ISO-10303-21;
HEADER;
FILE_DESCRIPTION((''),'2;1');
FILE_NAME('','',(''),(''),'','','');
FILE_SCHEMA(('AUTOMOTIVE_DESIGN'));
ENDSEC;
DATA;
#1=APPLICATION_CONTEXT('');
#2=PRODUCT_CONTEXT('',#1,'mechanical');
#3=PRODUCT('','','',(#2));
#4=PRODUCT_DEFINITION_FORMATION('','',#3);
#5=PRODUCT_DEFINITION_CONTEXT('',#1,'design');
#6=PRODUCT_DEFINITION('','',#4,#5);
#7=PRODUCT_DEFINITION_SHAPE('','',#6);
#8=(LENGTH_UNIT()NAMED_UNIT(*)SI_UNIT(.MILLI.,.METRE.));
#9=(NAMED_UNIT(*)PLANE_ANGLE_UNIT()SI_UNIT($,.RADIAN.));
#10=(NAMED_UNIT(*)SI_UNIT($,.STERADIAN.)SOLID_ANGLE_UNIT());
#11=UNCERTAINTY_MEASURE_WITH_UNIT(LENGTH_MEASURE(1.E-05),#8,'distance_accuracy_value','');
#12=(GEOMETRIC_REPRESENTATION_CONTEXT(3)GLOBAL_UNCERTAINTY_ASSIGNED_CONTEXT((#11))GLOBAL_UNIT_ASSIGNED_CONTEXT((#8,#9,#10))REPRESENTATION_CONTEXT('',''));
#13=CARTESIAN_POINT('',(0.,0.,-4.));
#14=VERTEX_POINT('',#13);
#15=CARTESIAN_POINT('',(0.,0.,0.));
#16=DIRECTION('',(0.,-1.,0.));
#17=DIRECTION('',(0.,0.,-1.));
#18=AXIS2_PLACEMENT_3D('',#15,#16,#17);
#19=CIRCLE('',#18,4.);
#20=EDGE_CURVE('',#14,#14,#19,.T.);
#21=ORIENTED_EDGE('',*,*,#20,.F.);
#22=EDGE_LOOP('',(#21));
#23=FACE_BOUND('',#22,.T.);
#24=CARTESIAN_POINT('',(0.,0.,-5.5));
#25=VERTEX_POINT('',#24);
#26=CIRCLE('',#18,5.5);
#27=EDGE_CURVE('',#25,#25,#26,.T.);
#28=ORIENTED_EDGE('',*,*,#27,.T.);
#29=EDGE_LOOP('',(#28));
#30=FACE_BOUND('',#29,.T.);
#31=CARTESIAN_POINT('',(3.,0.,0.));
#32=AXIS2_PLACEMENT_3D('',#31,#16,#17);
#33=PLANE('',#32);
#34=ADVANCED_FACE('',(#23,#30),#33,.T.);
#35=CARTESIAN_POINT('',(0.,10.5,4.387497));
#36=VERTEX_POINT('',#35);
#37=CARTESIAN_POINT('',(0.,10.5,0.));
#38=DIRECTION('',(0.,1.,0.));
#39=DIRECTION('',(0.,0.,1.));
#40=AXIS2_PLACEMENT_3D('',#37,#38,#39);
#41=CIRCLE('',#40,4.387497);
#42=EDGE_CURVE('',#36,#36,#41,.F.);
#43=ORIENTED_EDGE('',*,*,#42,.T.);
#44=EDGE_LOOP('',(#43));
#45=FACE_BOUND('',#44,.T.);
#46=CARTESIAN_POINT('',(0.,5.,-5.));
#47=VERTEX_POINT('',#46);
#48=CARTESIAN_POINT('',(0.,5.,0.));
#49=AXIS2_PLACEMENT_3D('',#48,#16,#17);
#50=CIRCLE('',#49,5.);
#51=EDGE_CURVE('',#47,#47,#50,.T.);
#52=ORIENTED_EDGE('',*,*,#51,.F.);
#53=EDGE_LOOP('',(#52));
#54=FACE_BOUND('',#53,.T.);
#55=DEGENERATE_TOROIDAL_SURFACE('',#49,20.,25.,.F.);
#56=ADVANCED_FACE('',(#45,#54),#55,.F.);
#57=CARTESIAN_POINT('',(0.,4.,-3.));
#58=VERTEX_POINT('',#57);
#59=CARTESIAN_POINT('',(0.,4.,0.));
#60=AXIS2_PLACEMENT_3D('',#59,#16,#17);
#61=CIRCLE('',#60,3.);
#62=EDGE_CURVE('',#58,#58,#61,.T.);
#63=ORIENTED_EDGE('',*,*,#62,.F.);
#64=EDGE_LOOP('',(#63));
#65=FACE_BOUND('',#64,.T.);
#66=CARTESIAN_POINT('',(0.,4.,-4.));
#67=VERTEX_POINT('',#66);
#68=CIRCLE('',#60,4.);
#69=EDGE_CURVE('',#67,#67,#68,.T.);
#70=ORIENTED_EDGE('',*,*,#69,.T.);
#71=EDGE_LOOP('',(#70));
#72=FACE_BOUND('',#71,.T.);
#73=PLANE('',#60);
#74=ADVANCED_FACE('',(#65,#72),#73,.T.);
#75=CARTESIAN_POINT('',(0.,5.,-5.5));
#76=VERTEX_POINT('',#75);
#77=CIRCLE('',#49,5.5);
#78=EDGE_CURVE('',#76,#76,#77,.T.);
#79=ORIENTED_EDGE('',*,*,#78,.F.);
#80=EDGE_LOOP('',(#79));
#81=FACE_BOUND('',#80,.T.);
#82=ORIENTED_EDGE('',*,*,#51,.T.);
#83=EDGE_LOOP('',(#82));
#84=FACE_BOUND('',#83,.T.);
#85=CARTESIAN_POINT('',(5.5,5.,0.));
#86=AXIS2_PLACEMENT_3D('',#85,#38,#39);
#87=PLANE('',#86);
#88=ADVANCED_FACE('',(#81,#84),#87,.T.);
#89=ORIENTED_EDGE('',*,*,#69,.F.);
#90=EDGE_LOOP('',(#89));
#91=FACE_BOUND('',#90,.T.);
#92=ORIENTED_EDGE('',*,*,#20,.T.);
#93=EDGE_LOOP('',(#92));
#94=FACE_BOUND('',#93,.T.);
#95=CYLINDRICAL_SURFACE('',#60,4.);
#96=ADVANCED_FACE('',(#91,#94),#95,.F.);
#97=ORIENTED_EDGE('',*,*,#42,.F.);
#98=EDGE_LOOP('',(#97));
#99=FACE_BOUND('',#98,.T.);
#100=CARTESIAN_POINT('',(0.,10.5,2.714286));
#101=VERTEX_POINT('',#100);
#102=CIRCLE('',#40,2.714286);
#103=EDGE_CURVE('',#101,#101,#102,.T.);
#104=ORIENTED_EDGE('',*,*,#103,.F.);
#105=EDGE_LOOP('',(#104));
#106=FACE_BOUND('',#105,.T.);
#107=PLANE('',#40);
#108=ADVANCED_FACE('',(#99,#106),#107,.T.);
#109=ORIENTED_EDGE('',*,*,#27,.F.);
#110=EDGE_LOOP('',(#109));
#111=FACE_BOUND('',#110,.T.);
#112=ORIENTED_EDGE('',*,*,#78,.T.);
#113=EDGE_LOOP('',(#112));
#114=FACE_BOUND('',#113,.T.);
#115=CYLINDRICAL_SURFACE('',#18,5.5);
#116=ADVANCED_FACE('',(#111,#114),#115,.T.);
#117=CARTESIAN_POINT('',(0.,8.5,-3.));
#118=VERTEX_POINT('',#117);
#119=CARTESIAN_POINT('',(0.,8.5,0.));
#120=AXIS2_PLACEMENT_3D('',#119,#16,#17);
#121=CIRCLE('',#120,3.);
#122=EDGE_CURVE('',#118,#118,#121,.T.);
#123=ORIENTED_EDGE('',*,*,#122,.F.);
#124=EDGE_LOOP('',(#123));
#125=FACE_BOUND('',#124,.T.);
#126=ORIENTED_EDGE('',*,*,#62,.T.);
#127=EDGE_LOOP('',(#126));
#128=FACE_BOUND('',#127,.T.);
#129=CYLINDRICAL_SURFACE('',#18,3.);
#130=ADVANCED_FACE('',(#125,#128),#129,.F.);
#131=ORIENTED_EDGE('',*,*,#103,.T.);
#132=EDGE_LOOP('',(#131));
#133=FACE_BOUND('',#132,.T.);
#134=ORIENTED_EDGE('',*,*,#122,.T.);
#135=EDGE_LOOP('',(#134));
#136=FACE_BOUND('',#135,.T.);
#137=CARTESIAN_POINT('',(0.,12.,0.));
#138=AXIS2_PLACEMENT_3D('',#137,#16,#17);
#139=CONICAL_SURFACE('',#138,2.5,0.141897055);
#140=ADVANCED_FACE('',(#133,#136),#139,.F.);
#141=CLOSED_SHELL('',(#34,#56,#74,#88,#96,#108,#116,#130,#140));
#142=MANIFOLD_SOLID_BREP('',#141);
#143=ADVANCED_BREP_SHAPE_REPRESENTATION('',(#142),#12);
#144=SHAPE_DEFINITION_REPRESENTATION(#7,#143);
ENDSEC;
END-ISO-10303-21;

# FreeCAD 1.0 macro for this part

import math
import FreeCAD as App
import Part
import Sketcher

doc = App.newDocument("Part")
body = doc.addObject("PartDesign::Body", "Body")

# Sketch on XY plane
sketch1 = body.newObject("Sketcher::SketchObject", "Sketch")
sketch1.AttachmentSupport = (doc.getObject("XY_Plane"), [""])
sketch1.MapMode = "FlatFace"
sketch1.addGeometry([
    Part.LineSegment(App.Vector(3, 0, 0), App.Vector(5.5, 0, 0)),  # 0
    Part.LineSegment(App.Vector(5.5, 0, 0), App.Vector(5.5, 5, 0)),  # 1
    Part.LineSegment(App.Vector(5.5, 5, 0), App.Vector(5, 5, 0)),  # 2
    Part.ArcOfCircle(Part.Circle(App.Vector(-20, 5, 0), App.Vector(0, 0, 1), 25), math.radians(0), math.radians(16.26)),  # 3
    Part.LineSegment(App.Vector(4, 12, 0), App.Vector(2.5, 12, 0)),  # 4
    Part.LineSegment(App.Vector(2.5, 12, 0), App.Vector(3, 8.5, 0)),  # 5
    Part.LineSegment(App.Vector(3, 8.5, 0), App.Vector(3, 0, 0)),  # 6
], False)
sketch1.addConstraint([
    Sketcher.Constraint("Coincident", 0, 2, 1, 1),
    Sketcher.Constraint("Coincident", 1, 2, 2, 1),
    Sketcher.Constraint("Coincident", 2, 2, 3, 1),
    Sketcher.Constraint("Coincident", 3, 2, 4, 1),
    Sketcher.Constraint("Coincident", 4, 2, 5, 1),
    Sketcher.Constraint("Coincident", 5, 2, 6, 1),
    Sketcher.Constraint("Coincident", 6, 2, 0, 1),
    Sketcher.Constraint("Horizontal", 0),
    Sketcher.Constraint("Vertical", 1),
    Sketcher.Constraint("Horizontal", 2),
    Sketcher.Constraint("Horizontal", 4),
    Sketcher.Constraint("Vertical", 6),
    Sketcher.Constraint("PointOnObject", 0, 2, -1),
    Sketcher.Constraint("Horizontal", 3, 3, 1, 2),
    Sketcher.Constraint("Radius", 3, 25.0),
    Sketcher.Constraint("DistanceY", 1, 1, 1, 2, 5.0),
    Sketcher.Constraint("DistanceX", 0, 1, 0, 2, 2.5),
    Sketcher.Constraint("DistanceX", 2, 2, 2, 1, 0.5),
    Sketcher.Constraint("DistanceX", 4, 2, 4, 1, 1.5),
    Sketcher.Constraint("DistanceY", 6, 2, 6, 1, 8.5),
    Sketcher.Constraint("DistanceX", 3, 3, -1, 1, 20.0),
    Sketcher.Constraint("DistanceX", -1, 1, 3, 2, 4.0),
])
revolution = body.newObject("PartDesign::Revolution", "Revolution")
revolution.Profile = sketch1
revolution.ReferenceAxis = (sketch1, ["V_Axis"])
revolution.Angle = 360

# Sketch on XZ plane
sketch2 = body.newObject("Sketcher::SketchObject", "Sketch001")
sketch2.AttachmentSupport = (doc.getObject("XZ_Plane"), [""])
sketch2.MapMode = "FlatFace"
sketch2.addGeometry(Part.Circle(App.Vector(0, 0, 0), App.Vector(0, 0, 1), 4), False)
sketch2.addConstraint([
    Sketcher.Constraint("Coincident", 0, 3, -1, 1),
    Sketcher.Constraint("Diameter", 0, 8.0),
])
pocket1 = body.newObject("PartDesign::Pocket", "Pocket")
pocket1.Profile = sketch2
pocket1.Length = 4

# Sketch on XZ plane
sketch3 = body.newObject("Sketcher::SketchObject", "Sketch002")
sketch3.AttachmentSupport = (doc.getObject("XZ_Plane"), [""])
sketch3.MapMode = "FlatFace"
sketch3.AttachmentOffset = App.Placement(App.Vector(0, 0, -12), App.Rotation())
sketch3.addGeometry([
    Part.Circle(App.Vector(0, 0, 0), App.Vector(0, 0, 1), 5.5),
    Part.Circle(App.Vector(0, 0, 0), App.Vector(0, 0, 1), 2.5),
], False)
sketch3.addConstraint([
    Sketcher.Constraint("Coincident", 0, 3, -1, 1),
    Sketcher.Constraint("Coincident", 1, 3, -1, 1),
    Sketcher.Constraint("Diameter", 0, 11.0),
    Sketcher.Constraint("Diameter", 1, 5.0),
])
pocket2 = body.newObject("PartDesign::Pocket", "Pocket001")
pocket2.Profile = sketch3
pocket2.Length = 1.5
pocket2.Reversed = True

doc.recompute()
